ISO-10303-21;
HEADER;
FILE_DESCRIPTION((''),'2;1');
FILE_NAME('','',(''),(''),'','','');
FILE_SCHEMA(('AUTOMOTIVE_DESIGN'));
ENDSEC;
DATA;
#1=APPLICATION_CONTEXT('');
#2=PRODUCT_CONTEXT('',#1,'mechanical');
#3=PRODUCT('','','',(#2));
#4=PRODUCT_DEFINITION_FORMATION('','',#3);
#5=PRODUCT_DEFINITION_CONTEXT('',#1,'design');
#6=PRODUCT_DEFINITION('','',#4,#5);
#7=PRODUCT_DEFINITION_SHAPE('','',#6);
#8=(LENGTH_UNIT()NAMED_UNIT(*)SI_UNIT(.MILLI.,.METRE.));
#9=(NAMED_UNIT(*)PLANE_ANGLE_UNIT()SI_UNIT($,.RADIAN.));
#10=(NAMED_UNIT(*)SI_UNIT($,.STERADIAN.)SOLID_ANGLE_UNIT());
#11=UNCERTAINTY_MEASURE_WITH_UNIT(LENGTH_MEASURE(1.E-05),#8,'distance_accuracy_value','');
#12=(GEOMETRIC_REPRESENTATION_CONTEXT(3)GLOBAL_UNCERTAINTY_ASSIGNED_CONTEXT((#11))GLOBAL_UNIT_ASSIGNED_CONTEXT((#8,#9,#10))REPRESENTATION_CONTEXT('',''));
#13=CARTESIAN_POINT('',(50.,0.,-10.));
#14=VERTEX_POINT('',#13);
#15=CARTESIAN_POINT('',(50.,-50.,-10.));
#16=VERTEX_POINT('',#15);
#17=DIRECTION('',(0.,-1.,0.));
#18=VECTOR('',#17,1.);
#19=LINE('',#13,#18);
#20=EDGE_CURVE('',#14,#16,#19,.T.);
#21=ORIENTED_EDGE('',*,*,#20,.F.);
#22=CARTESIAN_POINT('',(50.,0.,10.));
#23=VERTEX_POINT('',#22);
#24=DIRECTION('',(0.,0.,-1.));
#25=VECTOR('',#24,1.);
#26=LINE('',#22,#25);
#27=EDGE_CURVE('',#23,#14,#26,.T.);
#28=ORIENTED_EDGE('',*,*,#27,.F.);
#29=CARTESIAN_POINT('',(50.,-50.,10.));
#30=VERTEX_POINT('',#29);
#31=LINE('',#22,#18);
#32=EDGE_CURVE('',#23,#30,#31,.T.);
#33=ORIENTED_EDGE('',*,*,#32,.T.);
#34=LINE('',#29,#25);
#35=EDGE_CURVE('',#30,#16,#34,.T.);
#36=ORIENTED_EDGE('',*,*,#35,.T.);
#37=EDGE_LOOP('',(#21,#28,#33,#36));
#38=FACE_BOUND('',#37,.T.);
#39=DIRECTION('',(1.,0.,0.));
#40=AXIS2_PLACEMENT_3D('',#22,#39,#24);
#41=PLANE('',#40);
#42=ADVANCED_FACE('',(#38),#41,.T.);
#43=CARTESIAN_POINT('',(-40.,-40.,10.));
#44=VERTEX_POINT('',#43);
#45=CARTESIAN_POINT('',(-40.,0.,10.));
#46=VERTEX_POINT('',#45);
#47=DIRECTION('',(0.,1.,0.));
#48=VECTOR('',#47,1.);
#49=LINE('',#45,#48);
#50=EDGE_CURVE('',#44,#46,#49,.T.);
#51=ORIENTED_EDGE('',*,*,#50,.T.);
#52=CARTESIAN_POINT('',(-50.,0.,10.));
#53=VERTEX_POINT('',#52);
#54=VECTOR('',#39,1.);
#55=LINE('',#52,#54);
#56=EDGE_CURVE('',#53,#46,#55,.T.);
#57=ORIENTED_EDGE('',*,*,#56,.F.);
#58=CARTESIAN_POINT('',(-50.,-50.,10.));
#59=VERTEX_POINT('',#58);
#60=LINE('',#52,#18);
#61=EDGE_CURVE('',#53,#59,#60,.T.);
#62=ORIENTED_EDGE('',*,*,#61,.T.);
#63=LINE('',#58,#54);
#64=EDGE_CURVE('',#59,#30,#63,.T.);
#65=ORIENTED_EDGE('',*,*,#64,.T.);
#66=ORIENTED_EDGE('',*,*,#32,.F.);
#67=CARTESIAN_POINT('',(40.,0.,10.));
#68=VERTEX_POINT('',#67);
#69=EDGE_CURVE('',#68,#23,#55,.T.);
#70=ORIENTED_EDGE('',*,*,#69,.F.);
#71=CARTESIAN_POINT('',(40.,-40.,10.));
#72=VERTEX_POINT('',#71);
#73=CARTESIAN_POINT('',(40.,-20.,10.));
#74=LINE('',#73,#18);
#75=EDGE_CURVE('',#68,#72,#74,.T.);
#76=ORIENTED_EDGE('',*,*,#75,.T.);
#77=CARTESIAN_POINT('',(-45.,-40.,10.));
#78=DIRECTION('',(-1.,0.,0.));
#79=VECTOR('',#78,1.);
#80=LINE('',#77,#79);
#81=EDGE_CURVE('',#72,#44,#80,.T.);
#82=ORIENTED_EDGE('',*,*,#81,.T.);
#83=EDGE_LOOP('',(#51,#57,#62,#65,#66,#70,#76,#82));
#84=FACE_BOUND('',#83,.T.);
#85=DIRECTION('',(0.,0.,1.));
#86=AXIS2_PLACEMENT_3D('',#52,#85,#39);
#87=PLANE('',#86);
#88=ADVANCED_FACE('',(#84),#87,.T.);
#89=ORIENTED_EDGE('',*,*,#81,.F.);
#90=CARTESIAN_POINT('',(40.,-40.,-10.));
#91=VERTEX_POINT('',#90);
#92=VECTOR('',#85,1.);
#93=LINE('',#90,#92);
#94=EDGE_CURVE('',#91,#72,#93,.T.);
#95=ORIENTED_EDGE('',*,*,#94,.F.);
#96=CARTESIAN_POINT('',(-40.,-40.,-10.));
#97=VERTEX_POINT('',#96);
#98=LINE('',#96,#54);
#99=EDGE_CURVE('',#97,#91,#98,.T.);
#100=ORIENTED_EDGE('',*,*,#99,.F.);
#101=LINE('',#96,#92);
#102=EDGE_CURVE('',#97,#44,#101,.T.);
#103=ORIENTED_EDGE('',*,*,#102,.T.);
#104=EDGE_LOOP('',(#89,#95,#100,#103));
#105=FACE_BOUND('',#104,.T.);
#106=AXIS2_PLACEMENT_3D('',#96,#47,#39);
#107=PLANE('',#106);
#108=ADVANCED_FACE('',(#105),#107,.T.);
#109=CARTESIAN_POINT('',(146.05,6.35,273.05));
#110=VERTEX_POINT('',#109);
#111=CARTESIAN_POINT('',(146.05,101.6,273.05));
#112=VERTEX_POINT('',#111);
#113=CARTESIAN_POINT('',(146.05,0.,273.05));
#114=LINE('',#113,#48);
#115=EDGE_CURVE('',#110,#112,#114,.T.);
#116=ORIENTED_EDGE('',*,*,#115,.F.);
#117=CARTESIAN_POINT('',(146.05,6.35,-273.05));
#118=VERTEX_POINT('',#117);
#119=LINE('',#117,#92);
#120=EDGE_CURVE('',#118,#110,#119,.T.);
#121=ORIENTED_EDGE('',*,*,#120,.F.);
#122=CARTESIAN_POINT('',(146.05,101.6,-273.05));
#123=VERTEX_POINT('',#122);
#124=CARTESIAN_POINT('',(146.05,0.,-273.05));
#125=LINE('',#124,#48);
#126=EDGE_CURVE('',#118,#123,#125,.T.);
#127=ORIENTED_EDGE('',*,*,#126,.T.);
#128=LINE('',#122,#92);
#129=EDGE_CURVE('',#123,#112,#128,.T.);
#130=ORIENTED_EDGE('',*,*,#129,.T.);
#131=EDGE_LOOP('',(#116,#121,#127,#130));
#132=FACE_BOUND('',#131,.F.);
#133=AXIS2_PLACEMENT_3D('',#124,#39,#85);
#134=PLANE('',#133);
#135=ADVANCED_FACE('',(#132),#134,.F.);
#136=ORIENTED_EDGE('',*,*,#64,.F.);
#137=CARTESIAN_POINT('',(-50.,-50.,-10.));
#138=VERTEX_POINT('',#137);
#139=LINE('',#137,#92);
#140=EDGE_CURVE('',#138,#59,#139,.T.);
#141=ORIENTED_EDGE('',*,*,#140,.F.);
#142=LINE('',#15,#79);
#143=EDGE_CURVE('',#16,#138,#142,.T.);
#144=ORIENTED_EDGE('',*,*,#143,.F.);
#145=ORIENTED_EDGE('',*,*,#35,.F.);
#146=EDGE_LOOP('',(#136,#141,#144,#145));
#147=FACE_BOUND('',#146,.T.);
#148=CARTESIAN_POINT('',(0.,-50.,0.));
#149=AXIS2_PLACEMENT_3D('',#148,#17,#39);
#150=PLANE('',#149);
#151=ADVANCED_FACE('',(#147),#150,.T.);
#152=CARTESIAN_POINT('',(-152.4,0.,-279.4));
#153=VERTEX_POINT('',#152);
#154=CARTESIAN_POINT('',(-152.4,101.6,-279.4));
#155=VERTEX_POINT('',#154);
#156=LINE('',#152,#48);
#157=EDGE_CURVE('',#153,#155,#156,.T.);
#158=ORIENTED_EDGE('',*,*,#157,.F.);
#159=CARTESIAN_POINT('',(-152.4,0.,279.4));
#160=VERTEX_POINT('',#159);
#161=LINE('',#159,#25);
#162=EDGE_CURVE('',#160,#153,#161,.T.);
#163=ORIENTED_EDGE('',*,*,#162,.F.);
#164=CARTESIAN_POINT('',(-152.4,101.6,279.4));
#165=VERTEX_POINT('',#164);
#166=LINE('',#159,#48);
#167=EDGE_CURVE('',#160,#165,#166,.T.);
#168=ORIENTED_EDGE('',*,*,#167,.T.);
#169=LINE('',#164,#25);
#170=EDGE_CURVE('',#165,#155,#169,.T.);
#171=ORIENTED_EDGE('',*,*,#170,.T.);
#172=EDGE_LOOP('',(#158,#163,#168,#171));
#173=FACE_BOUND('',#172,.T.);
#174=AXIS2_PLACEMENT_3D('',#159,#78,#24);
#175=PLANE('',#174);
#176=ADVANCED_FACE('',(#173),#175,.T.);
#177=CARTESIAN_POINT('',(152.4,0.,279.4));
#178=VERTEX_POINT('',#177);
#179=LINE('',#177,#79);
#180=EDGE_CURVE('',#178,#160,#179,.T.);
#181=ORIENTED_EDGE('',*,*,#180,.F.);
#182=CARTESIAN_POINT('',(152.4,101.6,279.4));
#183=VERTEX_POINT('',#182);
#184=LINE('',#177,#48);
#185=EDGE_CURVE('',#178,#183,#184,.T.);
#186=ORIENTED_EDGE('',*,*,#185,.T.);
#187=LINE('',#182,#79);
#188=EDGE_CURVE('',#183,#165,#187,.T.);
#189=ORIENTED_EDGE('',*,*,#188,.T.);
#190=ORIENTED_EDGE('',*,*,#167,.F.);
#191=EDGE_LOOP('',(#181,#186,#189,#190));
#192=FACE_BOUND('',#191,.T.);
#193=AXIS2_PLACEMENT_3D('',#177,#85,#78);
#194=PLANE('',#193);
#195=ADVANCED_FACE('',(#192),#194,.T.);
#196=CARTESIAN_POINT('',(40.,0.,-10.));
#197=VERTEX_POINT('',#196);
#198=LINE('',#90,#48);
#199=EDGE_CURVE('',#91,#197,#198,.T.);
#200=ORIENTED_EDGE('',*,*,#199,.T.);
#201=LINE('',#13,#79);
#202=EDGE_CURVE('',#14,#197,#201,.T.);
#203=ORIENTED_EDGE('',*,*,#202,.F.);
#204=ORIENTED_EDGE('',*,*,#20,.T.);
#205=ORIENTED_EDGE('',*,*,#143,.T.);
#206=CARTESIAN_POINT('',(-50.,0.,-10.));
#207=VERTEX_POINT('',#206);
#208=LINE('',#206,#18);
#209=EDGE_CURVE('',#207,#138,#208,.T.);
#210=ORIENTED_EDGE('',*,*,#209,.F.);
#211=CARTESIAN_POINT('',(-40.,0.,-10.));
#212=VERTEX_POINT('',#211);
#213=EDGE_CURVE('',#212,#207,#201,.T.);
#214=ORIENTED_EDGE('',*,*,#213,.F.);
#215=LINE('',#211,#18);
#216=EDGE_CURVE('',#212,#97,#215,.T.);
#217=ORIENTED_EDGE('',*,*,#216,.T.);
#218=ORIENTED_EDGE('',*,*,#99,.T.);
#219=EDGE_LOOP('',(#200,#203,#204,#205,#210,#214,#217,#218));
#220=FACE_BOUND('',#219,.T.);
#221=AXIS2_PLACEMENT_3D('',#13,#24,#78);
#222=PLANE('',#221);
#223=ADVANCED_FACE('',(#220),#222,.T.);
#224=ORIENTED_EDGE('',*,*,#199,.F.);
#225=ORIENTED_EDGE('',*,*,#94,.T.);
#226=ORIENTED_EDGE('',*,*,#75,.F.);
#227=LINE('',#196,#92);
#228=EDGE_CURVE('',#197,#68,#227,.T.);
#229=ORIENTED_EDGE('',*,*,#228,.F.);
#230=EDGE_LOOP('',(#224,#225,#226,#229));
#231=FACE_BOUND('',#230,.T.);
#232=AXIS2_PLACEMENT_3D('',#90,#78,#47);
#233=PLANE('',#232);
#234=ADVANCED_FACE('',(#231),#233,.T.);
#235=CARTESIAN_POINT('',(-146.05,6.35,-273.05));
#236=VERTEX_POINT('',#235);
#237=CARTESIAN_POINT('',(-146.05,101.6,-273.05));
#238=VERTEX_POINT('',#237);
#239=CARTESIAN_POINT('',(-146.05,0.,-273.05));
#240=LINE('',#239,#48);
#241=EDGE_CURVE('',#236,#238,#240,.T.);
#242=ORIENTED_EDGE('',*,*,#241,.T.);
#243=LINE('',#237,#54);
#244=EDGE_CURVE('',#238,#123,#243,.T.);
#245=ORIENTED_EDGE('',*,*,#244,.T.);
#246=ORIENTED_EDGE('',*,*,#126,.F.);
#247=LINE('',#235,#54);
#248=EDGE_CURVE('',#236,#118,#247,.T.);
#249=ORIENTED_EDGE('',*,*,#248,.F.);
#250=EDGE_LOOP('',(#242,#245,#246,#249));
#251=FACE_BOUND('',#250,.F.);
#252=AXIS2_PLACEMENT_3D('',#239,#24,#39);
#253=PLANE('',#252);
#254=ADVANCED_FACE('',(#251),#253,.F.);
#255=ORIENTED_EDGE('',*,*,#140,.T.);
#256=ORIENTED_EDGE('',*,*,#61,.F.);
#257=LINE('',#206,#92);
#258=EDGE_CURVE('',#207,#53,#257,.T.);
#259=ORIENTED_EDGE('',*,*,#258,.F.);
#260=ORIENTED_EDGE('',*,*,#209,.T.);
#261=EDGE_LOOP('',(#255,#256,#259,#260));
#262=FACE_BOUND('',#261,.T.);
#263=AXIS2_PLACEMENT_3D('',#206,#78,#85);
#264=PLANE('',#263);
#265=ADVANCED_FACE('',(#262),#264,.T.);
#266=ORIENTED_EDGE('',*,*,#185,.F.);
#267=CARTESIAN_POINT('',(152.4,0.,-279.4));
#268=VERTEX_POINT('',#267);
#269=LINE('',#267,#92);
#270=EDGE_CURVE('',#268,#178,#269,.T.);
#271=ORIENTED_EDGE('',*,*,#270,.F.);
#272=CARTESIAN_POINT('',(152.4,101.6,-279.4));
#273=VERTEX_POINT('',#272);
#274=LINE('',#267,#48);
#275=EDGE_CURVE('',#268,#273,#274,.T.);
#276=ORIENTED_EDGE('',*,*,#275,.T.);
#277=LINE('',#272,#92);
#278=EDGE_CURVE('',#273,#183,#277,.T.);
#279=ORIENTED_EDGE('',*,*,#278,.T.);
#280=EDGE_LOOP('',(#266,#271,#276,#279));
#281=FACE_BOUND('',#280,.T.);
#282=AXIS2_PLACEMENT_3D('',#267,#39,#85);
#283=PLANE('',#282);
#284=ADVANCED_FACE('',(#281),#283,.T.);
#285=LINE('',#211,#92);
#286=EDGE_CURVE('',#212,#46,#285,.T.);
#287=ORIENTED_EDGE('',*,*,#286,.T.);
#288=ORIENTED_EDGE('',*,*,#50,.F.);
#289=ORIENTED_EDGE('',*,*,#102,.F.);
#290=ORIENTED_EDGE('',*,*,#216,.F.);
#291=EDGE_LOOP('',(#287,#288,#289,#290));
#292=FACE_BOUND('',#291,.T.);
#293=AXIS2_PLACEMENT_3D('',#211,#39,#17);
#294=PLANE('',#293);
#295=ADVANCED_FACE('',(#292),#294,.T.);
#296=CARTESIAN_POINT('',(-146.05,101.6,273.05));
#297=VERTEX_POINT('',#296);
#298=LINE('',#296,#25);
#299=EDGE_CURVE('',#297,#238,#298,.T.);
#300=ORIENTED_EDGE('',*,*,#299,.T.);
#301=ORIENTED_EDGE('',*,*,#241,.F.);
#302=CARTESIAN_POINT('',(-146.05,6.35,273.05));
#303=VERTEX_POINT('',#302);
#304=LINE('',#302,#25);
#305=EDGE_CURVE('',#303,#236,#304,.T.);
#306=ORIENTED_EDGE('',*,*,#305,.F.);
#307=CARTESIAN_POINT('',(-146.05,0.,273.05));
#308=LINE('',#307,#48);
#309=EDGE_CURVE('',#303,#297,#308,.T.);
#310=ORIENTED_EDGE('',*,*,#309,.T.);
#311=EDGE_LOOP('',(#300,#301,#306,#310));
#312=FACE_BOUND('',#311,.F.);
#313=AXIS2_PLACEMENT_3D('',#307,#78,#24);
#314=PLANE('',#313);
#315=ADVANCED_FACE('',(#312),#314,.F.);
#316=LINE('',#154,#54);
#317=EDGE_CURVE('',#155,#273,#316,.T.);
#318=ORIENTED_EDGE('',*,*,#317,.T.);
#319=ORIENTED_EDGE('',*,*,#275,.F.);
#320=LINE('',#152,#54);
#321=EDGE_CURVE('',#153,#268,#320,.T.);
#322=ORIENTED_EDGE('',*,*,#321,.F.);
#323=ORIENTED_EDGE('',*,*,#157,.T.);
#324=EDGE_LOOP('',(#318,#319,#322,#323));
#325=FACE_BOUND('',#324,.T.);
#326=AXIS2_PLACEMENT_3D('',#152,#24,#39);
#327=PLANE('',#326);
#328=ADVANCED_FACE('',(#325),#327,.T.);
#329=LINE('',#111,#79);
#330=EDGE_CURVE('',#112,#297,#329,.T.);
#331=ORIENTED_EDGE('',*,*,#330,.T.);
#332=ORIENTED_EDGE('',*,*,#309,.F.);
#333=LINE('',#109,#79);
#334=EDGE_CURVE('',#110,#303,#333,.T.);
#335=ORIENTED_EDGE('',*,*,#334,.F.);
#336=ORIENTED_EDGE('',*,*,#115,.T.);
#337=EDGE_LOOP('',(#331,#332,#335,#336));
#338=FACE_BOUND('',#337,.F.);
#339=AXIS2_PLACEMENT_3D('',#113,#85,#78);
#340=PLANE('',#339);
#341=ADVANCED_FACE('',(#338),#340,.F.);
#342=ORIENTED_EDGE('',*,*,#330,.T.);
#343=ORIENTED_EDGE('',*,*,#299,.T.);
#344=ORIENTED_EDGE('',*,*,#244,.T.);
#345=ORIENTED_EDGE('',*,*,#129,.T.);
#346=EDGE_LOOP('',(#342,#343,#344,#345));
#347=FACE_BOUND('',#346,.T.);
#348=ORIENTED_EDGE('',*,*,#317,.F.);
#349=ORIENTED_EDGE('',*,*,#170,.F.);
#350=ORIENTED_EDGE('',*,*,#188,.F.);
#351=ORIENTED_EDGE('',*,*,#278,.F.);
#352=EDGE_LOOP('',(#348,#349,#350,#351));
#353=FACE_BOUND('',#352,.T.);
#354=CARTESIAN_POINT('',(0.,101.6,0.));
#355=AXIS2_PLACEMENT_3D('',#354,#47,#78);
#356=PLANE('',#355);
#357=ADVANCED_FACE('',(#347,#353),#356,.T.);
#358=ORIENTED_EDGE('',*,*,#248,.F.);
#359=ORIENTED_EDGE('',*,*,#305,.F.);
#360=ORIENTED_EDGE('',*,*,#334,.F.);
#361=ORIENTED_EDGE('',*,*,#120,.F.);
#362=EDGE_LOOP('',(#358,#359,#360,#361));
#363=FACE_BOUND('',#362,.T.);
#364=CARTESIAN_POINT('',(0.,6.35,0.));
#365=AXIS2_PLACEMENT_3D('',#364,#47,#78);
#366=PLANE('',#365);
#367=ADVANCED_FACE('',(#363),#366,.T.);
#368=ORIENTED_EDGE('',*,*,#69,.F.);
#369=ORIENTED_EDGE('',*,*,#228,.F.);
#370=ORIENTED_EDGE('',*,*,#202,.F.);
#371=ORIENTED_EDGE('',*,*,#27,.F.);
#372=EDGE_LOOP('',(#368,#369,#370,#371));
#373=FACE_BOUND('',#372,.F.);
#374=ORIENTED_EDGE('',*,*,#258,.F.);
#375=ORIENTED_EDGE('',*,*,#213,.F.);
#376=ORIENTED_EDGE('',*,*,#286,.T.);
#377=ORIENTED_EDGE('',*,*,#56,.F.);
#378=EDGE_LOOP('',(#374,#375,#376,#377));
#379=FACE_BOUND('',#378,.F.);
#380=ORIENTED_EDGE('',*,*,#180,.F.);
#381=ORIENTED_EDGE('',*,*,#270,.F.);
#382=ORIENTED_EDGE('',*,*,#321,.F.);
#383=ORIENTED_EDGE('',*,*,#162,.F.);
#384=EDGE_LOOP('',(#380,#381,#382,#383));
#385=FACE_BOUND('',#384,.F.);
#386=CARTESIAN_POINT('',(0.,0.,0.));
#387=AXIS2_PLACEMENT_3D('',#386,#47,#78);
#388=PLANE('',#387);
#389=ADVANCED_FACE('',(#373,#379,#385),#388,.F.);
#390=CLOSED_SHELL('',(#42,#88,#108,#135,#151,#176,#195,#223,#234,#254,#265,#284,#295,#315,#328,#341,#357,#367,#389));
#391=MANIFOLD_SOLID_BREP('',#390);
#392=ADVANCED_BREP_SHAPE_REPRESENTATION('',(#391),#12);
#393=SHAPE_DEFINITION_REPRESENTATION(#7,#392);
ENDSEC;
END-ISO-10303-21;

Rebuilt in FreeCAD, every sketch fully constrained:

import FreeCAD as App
import Part
import Sketcher
Q = App.Units.Quantity


def add_polygon(sketch, points):
    """Adds a closed chain of lines whose ends are joined by coincident constraints."""
    first, n = sketch.GeometryCount, len(points)
    for a, b in zip(points, points[1:] + points[:1]):
        sketch.addGeometry(Part.LineSegment(App.Vector(*a, 0), App.Vector(*b, 0)), False)
    for i in range(n):
        sketch.addConstraint(Sketcher.Constraint("Coincident", first + i, 2, first + (i + 1) % n, 1))

doc = App.newDocument("Part")
body = doc.addObject("PartDesign::Body", "Body")

sketch1 = doc.addObject("Sketcher::SketchObject", "Sketch")
body.addObject(sketch1)
sketch1.AttachmentSupport = (doc.XZ_Plane, [""])
sketch1.MapMode = "FlatFace"
add_polygon(sketch1, [(-146.05, 273.05), (146.05, 273.05), (146.05, -273.05), (-146.05, -273.05)])
sketch1.addConstraint([
    Sketcher.Constraint("Horizontal", 0),
    Sketcher.Constraint("Vertical", 1),
    Sketcher.Constraint("Horizontal", 2),
    Sketcher.Constraint("Vertical", 3),
    Sketcher.Constraint("Symmetric", 0, 2, 2, 2, -1, 1),
    Sketcher.Constraint("DistanceX", 0, 1, 0, 2, Q("11.5 in")),
    Sketcher.Constraint("DistanceY", 1, 2, 1, 1, Q("21.5 in")),
])
pad1 = doc.addObject("PartDesign::Pad", "Pad")
body.addObject(pad1)
pad1.Profile = sketch1
pad1.Length = Q("0.25 in")
pad1.Reversed = True

sketch2 = doc.addObject("Sketcher::SketchObject", "Sketch001")
body.addObject(sketch2)
sketch2.AttachmentSupport = (doc.XZ_Plane, [""])
sketch2.MapMode = "FlatFace"
add_polygon(sketch2, [(-152.4, 279.4), (152.4, 279.4), (152.4, -279.4), (-152.4, -279.4)])
add_polygon(sketch2, [(146.05, -273.05), (146.05, 273.05), (-146.05, 273.05), (-146.05, -273.05)])
sketch2.addConstraint([
    Sketcher.Constraint("Horizontal", 0),
    Sketcher.Constraint("Vertical", 1),
    Sketcher.Constraint("Horizontal", 2),
    Sketcher.Constraint("Vertical", 3),
    Sketcher.Constraint("Vertical", 4),
    Sketcher.Constraint("Horizontal", 5),
    Sketcher.Constraint("Vertical", 6),
    Sketcher.Constraint("Horizontal", 7),
    Sketcher.Constraint("Symmetric", 0, 2, 2, 2, -1, 1),
    Sketcher.Constraint("Symmetric", 4, 2, 6, 2, -1, 1),
    Sketcher.Constraint("DistanceX", 0, 1, 0, 2, Q("12 in")),
    Sketcher.Constraint("DistanceY", 1, 2, 1, 1, Q("22 in")),
    Sketcher.Constraint("DistanceX", 5, 2, 5, 1, Q("11.5 in")),
    Sketcher.Constraint("DistanceY", 4, 1, 4, 2, Q("21.5 in")),
])
pad2 = doc.addObject("PartDesign::Pad", "Pad001")
body.addObject(pad2)
pad2.Profile = sketch2
pad2.Length = Q("4 in")
pad2.Reversed = True

sketch3 = doc.addObject("Sketcher::SketchObject", "Sketch002")
body.addObject(sketch3)
sketch3.AttachmentSupport = (doc.XZ_Plane, [""])
sketch3.MapMode = "FlatFace"
add_polygon(sketch3, [(50, 10), (-50, 10), (-50, -10), (50, -10)])
sketch3.addConstraint([
    Sketcher.Constraint("Horizontal", 0),
    Sketcher.Constraint("Vertical", 1),
    Sketcher.Constraint("Horizontal", 2),
    Sketcher.Constraint("Vertical", 3),
    Sketcher.Constraint("Symmetric", 0, 2, 2, 2, -1, 1),
    Sketcher.Constraint("DistanceX", 0, 2, 0, 1, Q("3.937 in")),
    Sketcher.Constraint("DistanceY", 1, 2, 1, 1, Q("0.7874 in")),
])
pad3 = doc.addObject("PartDesign::Pad", "Pad002")
body.addObject(pad3)
pad3.Profile = sketch3
pad3.Length = Q("1.9685039 in")

sketch4 = doc.addObject("Sketcher::SketchObject", "Sketch003")
body.addObject(sketch4)
sketch4.AttachmentSupport = (doc.XY_Plane, [""])
sketch4.MapMode = "FlatFace"
sketch4.AttachmentOffset = App.Placement(App.Vector(0, 0, -0.3937008 * 25.4), App.Rotation())
add_polygon(sketch4, [(-40, -40), (-40, 0), (40, 0), (40, -40)])
sketch4.addConstraint([
    Sketcher.Constraint("Vertical", 0),
    Sketcher.Constraint("Horizontal", 1),
    Sketcher.Constraint("Vertical", 2),
    Sketcher.Constraint("Horizontal", 3),
    Sketcher.Constraint("Symmetric", 0, 2, 1, 2, -1, 1),
    Sketcher.Constraint("DistanceX", 1, 1, 1, 2, Q("3.1496 in")),
    Sketcher.Constraint("DistanceY", 0, 1, 0, 2, Q("1.5748 in")),
])
pocket1 = doc.addObject("PartDesign::Pocket", "Pocket")
body.addObject(pocket1)
pocket1.Profile = sketch4
pocket1.Length = Q("1.9685039 in")
pocket1.Reversed = True

doc.recompute()
